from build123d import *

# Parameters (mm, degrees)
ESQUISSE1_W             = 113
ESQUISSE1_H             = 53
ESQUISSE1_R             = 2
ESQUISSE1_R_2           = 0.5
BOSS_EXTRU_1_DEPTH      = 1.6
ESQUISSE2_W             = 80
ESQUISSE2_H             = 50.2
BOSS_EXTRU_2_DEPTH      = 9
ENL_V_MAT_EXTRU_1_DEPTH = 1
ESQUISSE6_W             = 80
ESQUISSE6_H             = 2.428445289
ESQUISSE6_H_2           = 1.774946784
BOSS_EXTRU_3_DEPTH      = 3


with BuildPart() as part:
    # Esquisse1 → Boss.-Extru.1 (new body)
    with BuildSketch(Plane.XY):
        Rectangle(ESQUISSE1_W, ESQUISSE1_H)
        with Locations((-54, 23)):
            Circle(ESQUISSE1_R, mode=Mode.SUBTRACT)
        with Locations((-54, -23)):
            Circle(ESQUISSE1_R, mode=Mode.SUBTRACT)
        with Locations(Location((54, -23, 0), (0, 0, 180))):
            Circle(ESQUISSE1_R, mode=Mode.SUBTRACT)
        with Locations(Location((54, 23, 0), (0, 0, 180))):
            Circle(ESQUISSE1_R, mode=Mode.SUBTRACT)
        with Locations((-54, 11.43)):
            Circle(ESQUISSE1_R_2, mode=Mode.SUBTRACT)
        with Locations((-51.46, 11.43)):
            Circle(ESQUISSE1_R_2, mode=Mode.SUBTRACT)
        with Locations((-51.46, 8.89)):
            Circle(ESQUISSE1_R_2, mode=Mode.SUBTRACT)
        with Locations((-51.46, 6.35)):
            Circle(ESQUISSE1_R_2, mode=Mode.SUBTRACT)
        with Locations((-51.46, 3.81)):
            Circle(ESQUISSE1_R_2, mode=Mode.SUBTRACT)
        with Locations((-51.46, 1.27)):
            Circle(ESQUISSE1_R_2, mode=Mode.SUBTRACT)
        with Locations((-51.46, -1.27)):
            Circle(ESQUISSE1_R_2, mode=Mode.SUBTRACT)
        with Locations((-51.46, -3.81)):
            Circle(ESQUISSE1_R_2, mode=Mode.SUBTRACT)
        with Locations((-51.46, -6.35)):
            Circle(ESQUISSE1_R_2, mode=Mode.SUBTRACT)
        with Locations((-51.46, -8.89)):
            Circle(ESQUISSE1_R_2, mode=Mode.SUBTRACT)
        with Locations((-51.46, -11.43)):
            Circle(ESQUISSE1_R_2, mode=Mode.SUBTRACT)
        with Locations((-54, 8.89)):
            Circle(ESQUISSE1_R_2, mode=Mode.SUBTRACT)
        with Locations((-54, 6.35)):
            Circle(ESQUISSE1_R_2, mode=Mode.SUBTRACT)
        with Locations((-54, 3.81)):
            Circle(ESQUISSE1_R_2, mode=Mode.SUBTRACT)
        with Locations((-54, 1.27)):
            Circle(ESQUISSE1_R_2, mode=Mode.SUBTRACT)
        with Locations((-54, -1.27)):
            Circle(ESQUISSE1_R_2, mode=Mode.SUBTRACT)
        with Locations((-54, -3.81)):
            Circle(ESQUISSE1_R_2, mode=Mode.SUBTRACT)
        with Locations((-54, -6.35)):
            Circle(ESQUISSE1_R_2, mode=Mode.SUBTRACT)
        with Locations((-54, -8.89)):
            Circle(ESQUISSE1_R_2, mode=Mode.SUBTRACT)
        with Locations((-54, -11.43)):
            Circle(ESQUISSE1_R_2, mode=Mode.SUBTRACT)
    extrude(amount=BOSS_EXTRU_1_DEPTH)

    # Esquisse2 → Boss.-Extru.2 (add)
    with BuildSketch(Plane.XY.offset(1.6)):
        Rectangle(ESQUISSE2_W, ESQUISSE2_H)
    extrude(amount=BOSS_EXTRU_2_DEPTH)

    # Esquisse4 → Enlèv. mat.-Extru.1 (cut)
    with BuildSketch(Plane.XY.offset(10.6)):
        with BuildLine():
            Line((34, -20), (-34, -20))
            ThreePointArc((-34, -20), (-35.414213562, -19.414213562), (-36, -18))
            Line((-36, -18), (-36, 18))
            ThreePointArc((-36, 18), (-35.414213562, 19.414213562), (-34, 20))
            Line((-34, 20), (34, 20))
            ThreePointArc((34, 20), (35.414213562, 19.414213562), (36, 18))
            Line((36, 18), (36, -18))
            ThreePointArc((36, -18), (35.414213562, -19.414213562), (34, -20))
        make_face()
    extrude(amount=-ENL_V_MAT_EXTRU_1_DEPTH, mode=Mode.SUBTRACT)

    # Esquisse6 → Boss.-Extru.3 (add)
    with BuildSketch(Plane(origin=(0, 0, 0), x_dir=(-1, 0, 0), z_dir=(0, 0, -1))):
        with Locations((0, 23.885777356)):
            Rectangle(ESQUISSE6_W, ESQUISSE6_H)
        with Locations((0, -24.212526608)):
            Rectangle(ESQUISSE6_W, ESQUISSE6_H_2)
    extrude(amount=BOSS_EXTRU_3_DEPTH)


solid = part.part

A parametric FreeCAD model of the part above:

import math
import FreeCAD as App
import Part
import Sketcher

V = App.Vector
Q = App.Units.Quantity

doc = App.newDocument("Part")
body = doc.addObject("PartDesign::Body", "Body")

sketch1 = body.newObject("Sketcher::SketchObject", "Sketch")
sketch1.AttachmentSupport = (doc.getObject("XY_Plane"), [""])
sketch1.MapMode = "FlatFace"
sketch1.addGeometry([
    Part.LineSegment(V(-56.5, 26.5, 0), V(-56.5, -26.5, 0)),
    Part.LineSegment(V(-56.5, -26.5, 0), V(56.5, -26.5, 0)),
    Part.LineSegment(V(56.5, -26.5, 0), V(56.5, 26.5, 0)),
    Part.LineSegment(V(56.5, 26.5, 0), V(-56.5, 26.5, 0)),
    Part.Circle(V(-54, -23, 0), V(0, 0, 1), 2),
    Part.Circle(V(-54, -11.4, 0), V(0, 0, 1), 0.5),
    Part.Circle(V(-51.5, -11.4, 0), V(0, 0, 1), 0.5),
    Part.Circle(V(-54, -8.9, 0), V(0, 0, 1), 0.5),
    Part.Circle(V(-51.5, -8.9, 0), V(0, 0, 1), 0.5),
    Part.Circle(V(-54, -6.3, 0), V(0, 0, 1), 0.5),
    Part.Circle(V(-51.5, -6.3, 0), V(0, 0, 1), 0.5),
    Part.Circle(V(-54, -3.8, 0), V(0, 0, 1), 0.5),
    Part.Circle(V(-51.5, -3.8, 0), V(0, 0, 1), 0.5),
    Part.Circle(V(-54, -1.3, 0), V(0, 0, 1), 0.5),
    Part.Circle(V(-51.5, -1.3, 0), V(0, 0, 1), 0.5),
    Part.Circle(V(54, -23, 0), V(0, 0, 1), 2),
    Part.Circle(V(-54, 1.3, 0), V(0, 0, 1), 0.5),
    Part.Circle(V(-51.5, 1.3, 0), V(0, 0, 1), 0.5),
    Part.Circle(V(-54, 3.8, 0), V(0, 0, 1), 0.5),
    Part.Circle(V(-51.5, 3.8, 0), V(0, 0, 1), 0.5),
    Part.Circle(V(-54, 6.3, 0), V(0, 0, 1), 0.5),
    Part.Circle(V(-51.5, 6.3, 0), V(0, 0, 1), 0.5),
    Part.Circle(V(-54, 8.9, 0), V(0, 0, 1), 0.5),
    Part.Circle(V(-51.5, 8.9, 0), V(0, 0, 1), 0.5),
    Part.Circle(V(-54, 11.4, 0), V(0, 0, 1), 0.5),
    Part.Circle(V(-51.5, 11.4, 0), V(0, 0, 1), 0.5),
    Part.Circle(V(-54, 23, 0), V(0, 0, 1), 2),
    Part.Circle(V(54, 23, 0), V(0, 0, 1), 2),
], False)
sketch1.addConstraint([
    Sketcher.Constraint("Coincident", 0, 2, 1, 1),
    Sketcher.Constraint("Coincident", 1, 2, 2, 1),
    Sketcher.Constraint("Coincident", 2, 2, 3, 1),
    Sketcher.Constraint("Coincident", 3, 2, 0, 1),
    Sketcher.Constraint("Vertical", 0),
    Sketcher.Constraint("Horizontal", 1),
    Sketcher.Constraint("Vertical", 2),
    Sketcher.Constraint("Horizontal", 3),
    Sketcher.Constraint("Equal", 5, 6),
    Sketcher.Constraint("Equal", 6, 7),
    Sketcher.Constraint("Equal", 7, 8),
    Sketcher.Constraint("Equal", 8, 9),
    Sketcher.Constraint("Equal", 9, 10),
    Sketcher.Constraint("Equal", 10, 11),
    Sketcher.Constraint("Equal", 11, 12),
    Sketcher.Constraint("Equal", 12, 13),
    Sketcher.Constraint("Equal", 13, 14),
    Sketcher.Constraint("Equal", 4, 15),
    Sketcher.Constraint("Equal", 14, 16),
    Sketcher.Constraint("Equal", 16, 17),
    Sketcher.Constraint("Equal", 17, 18),
    Sketcher.Constraint("Equal", 18, 19),
    Sketcher.Constraint("Equal", 19, 20),
    Sketcher.Constraint("Equal", 20, 21),
    Sketcher.Constraint("Equal", 21, 22),
    Sketcher.Constraint("Equal", 22, 23),
    Sketcher.Constraint("Equal", 23, 24),
    Sketcher.Constraint("Equal", 24, 25),
    Sketcher.Constraint("Equal", 15, 26),
    Sketcher.Constraint("Equal", 26, 27),
    Sketcher.Constraint("Symmetric", 15, 3, 26, 3, -1, 1),
    Sketcher.Constraint("Symmetric", 4, 3, 27, 3, -1, 1),
    Sketcher.Constraint("Symmetric", 0, 2, 2, 2, -1, 1),
    Sketcher.Constraint("Symmetric", 4, 3, 15, 3, -2),
    Sketcher.Constraint("Symmetric", 13, 3, 16, 3, -1),
    Sketcher.Constraint("Symmetric", 14, 3, 17, 3, -1),
    Sketcher.Constraint("Symmetric", 11, 3, 18, 3, -1),
    Sketcher.Constraint("Symmetric", 12, 3, 19, 3, -1),
    Sketcher.Constraint("Symmetric", 9, 3, 20, 3, -1),
    Sketcher.Constraint("Symmetric", 10, 3, 21, 3, -1),
    Sketcher.Constraint("Symmetric", 7, 3, 22, 3, -1),
    Sketcher.Constraint("Symmetric", 8, 3, 23, 3, -1),
    Sketcher.Constraint("Symmetric", 5, 3, 24, 3, -1),
    Sketcher.Constraint("Symmetric", 6, 3, 25, 3, -1),
    Sketcher.Constraint("Horizontal", 5, 3, 6, 3),
    Sketcher.Constraint("Horizontal", 7, 3, 8, 3),
    Sketcher.Constraint("Horizontal", 9, 3, 10, 3),
    Sketcher.Constraint("Horizontal", 11, 3, 12, 3),
    Sketcher.Constraint("Horizontal", 13, 3, 14, 3),
    Sketcher.Constraint("Vertical", 4, 3, 5, 3),
    Sketcher.Constraint("Vertical", 5, 3, 7, 3),
    Sketcher.Constraint("Vertical", 6, 3, 8, 3),
    Sketcher.Constraint("Vertical", 7, 3, 9, 3),
    Sketcher.Constraint("Vertical", 8, 3, 10, 3),
    Sketcher.Constraint("Vertical", 9, 3, 11, 3),
    Sketcher.Constraint("Vertical", 10, 3, 12, 3),
    Sketcher.Constraint("Vertical", 11, 3, 13, 3),
    Sketcher.Constraint("Vertical", 12, 3, 14, 3),
    Sketcher.Constraint("Diameter", 4, Q("4 mm")),
    Sketcher.Constraint("Diameter", 5, Q("1 mm")),
    Sketcher.Constraint("DistanceX", 1, 1, 1, 2, Q("113 mm")),
    Sketcher.Constraint("DistanceY", 0, 2, 0, 1, Q("53 mm")),
    Sketcher.Constraint("DistanceX", 4, 3, -1, 1, Q("54 mm")),
    Sketcher.Constraint("DistanceY", 4, 3, -1, 1, Q("23 mm")),
    Sketcher.Constraint("DistanceY", 5, 3, -1, 1, Q("11.43 mm")),
    Sketcher.Constraint("DistanceX", 6, 3, -1, 1, Q("51.46 mm")),
    Sketcher.Constraint("DistanceY", 7, 3, -1, 1, Q("8.89 mm")),
    Sketcher.Constraint("DistanceY", 9, 3, -1, 1, Q("6.35 mm")),
    Sketcher.Constraint("DistanceY", 11, 3, -1, 1, Q("3.81 mm")),
    Sketcher.Constraint("DistanceY", 13, 3, -1, 1, Q("1.27 mm")),
])
pad1 = body.newObject("PartDesign::Pad", "Pad")
pad1.Profile = sketch1
pad1.Length = 1.6

sketch2 = body.newObject("Sketcher::SketchObject", "Sketch001")
sketch2.AttachmentSupport = (doc.getObject("XY_Plane"), [""])
sketch2.MapMode = "FlatFace"
sketch2.AttachmentOffset = App.Placement(V(0, 0, 1.6), App.Rotation())
sketch2.addGeometry([
    Part.LineSegment(V(-40, 25, 0), V(-40, -25, 0)),
    Part.LineSegment(V(-40, -25, 0), V(40, -25, 0)),
    Part.LineSegment(V(40, -25, 0), V(40, 25, 0)),
    Part.LineSegment(V(40, 25, 0), V(-40, 25, 0)),
], False)
sketch2.addConstraint([
    Sketcher.Constraint("Coincident", 0, 2, 1, 1),
    Sketcher.Constraint("Coincident", 1, 2, 2, 1),
    Sketcher.Constraint("Coincident", 2, 2, 3, 1),
    Sketcher.Constraint("Coincident", 3, 2, 0, 1),
    Sketcher.Constraint("Vertical", 0),
    Sketcher.Constraint("Horizontal", 1),
    Sketcher.Constraint("Vertical", 2),
    Sketcher.Constraint("Horizontal", 3),
    Sketcher.Constraint("Symmetric", 0, 2, 2, 2, -1, 1),
    Sketcher.Constraint("DistanceX", 1, 1, 1, 2, Q("80 mm")),
    Sketcher.Constraint("DistanceY", 0, 2, 0, 1, Q("50.2 mm")),
])
pad2 = body.newObject("PartDesign::Pad", "Pad001")
pad2.Profile = sketch2
pad2.Length = 9

sketch3 = body.newObject("Sketcher::SketchObject", "Sketch002")
sketch3.AttachmentSupport = (doc.getObject("XY_Plane"), [""])
sketch3.MapMode = "FlatFace"
sketch3.AttachmentOffset = App.Placement(V(0, 0, 10.6), App.Rotation())
sketch3.addGeometry([
    Part.LineSegment(V(-34, -20, 0), V(34, -20, 0)),
    Part.ArcOfCircle(Part.Circle(V(34, -18, 0), V(0, 0, 1), 2), math.radians(-90), math.radians(0)),
    Part.LineSegment(V(36, -18, 0), V(36, 18, 0)),
    Part.ArcOfCircle(Part.Circle(V(34, 18, 0), V(0, 0, 1), 2), math.radians(0), math.radians(90)),
    Part.LineSegment(V(34, 20, 0), V(-34, 20, 0)),
    Part.ArcOfCircle(Part.Circle(V(-34, 18, 0), V(0, 0, 1), 2), math.radians(90), math.radians(180)),
    Part.LineSegment(V(-36, 18, 0), V(-36, -18, 0)),
    Part.ArcOfCircle(Part.Circle(V(-34, -18, 0), V(0, 0, 1), 2), math.radians(-180), math.radians(-90)),
], False)
sketch3.addConstraint([
    Sketcher.Constraint("Tangent", 0, 2, 1, 1),
    Sketcher.Constraint("Tangent", 1, 2, 2, 1),
    Sketcher.Constraint("Tangent", 2, 2, 3, 1),
    Sketcher.Constraint("Tangent", 3, 2, 4, 1),
    Sketcher.Constraint("Tangent", 4, 2, 5, 1),
    Sketcher.Constraint("Tangent", 5, 2, 6, 1),
    Sketcher.Constraint("Tangent", 6, 2, 7, 1),
    Sketcher.Constraint("Tangent", 7, 2, 0, 1),
    Sketcher.Constraint("Horizontal", 0),
    Sketcher.Constraint("Vertical", 2),
    Sketcher.Constraint("Horizontal", 4),
    Sketcher.Constraint("Vertical", 6),
    Sketcher.Constraint("Equal", 1, 3),
    Sketcher.Constraint("Equal", 3, 5),
    Sketcher.Constraint("Equal", 5, 7),
    Sketcher.Constraint("Symmetric", 1, 3, 5, 3, -1, 1),
    Sketcher.Constraint("Radius", 1, Q("2 mm")),
    Sketcher.Constraint("DistanceX", 0, 1, 0, 2, Q("68 mm")),
    Sketcher.Constraint("DistanceY", 2, 1, 2, 2, Q("36 mm")),
])
pocket1 = body.newObject("PartDesign::Pocket", "Pocket")
pocket1.Profile = sketch3
pocket1.Length = 1

sketch4 = body.newObject("Sketcher::SketchObject", "Sketch003")
sketch4.AttachmentSupport = (doc.getObject("XY_Plane"), [""])
sketch4.MapMode = "FlatFace"
sketch4.addGeometry([
    Part.LineSegment(V(40, 25.1, 0), V(40, 22.7, 0)),
    Part.LineSegment(V(40, 22.7, 0), V(-40, 22.7, 0)),
    Part.LineSegment(V(-40, 22.7, 0), V(-40, 25.1, 0)),
    Part.LineSegment(V(-40, 25.1, 0), V(40, 25.1, 0)),
    Part.LineSegment(V(40, -23.3, 0), V(40, -25.1, 0)),
    Part.LineSegment(V(40, -25.1, 0), V(-40, -25.1, 0)),
    Part.LineSegment(V(-40, -25.1, 0), V(-40, -23.3, 0)),
    Part.LineSegment(V(-40, -23.3, 0), V(40, -23.3, 0)),
], False)
sketch4.addConstraint([
    Sketcher.Constraint("Coincident", 0, 2, 1, 1),
    Sketcher.Constraint("Coincident", 1, 2, 2, 1),
    Sketcher.Constraint("Coincident", 2, 2, 3, 1),
    Sketcher.Constraint("Coincident", 3, 2, 0, 1),
    Sketcher.Constraint("Coincident", 4, 2, 5, 1),
    Sketcher.Constraint("Coincident", 5, 2, 6, 1),
    Sketcher.Constraint("Coincident", 6, 2, 7, 1),
    Sketcher.Constraint("Coincident", 7, 2, 4, 1),
    Sketcher.Constraint("Vertical", 0),
    Sketcher.Constraint("Horizontal", 1),
    Sketcher.Constraint("Vertical", 2),
    Sketcher.Constraint("Horizontal", 3),
    Sketcher.Constraint("Vertical", 4),
    Sketcher.Constraint("Horizontal", 5),
    Sketcher.Constraint("Vertical", 6),
    Sketcher.Constraint("Horizontal", 7),
    Sketcher.Constraint("Symmetric", 2, 2, 4, 2, -1, 1),
    Sketcher.Constraint("Vertical", 3, 2, 4, 2),
    Sketcher.Constraint("Vertical", 2, 2, 5, 2),
    Sketcher.Constraint("DistanceX", 1, 2, 1, 1, Q("80 mm")),
    Sketcher.Constraint("DistanceY", -1, 1, 2, 2, Q("25.1 mm")),
    Sketcher.Constraint("DistanceY", 0, 2, 0, 1, Q("2.428445 mm")),
    Sketcher.Constraint("DistanceY", 4, 2, 4, 1, Q("1.774947 mm")),
])
pad3 = body.newObject("PartDesign::Pad", "Pad002")
pad3.Profile = sketch4
pad3.Length = 3
pad3.Reversed = True

doc.recompute()
